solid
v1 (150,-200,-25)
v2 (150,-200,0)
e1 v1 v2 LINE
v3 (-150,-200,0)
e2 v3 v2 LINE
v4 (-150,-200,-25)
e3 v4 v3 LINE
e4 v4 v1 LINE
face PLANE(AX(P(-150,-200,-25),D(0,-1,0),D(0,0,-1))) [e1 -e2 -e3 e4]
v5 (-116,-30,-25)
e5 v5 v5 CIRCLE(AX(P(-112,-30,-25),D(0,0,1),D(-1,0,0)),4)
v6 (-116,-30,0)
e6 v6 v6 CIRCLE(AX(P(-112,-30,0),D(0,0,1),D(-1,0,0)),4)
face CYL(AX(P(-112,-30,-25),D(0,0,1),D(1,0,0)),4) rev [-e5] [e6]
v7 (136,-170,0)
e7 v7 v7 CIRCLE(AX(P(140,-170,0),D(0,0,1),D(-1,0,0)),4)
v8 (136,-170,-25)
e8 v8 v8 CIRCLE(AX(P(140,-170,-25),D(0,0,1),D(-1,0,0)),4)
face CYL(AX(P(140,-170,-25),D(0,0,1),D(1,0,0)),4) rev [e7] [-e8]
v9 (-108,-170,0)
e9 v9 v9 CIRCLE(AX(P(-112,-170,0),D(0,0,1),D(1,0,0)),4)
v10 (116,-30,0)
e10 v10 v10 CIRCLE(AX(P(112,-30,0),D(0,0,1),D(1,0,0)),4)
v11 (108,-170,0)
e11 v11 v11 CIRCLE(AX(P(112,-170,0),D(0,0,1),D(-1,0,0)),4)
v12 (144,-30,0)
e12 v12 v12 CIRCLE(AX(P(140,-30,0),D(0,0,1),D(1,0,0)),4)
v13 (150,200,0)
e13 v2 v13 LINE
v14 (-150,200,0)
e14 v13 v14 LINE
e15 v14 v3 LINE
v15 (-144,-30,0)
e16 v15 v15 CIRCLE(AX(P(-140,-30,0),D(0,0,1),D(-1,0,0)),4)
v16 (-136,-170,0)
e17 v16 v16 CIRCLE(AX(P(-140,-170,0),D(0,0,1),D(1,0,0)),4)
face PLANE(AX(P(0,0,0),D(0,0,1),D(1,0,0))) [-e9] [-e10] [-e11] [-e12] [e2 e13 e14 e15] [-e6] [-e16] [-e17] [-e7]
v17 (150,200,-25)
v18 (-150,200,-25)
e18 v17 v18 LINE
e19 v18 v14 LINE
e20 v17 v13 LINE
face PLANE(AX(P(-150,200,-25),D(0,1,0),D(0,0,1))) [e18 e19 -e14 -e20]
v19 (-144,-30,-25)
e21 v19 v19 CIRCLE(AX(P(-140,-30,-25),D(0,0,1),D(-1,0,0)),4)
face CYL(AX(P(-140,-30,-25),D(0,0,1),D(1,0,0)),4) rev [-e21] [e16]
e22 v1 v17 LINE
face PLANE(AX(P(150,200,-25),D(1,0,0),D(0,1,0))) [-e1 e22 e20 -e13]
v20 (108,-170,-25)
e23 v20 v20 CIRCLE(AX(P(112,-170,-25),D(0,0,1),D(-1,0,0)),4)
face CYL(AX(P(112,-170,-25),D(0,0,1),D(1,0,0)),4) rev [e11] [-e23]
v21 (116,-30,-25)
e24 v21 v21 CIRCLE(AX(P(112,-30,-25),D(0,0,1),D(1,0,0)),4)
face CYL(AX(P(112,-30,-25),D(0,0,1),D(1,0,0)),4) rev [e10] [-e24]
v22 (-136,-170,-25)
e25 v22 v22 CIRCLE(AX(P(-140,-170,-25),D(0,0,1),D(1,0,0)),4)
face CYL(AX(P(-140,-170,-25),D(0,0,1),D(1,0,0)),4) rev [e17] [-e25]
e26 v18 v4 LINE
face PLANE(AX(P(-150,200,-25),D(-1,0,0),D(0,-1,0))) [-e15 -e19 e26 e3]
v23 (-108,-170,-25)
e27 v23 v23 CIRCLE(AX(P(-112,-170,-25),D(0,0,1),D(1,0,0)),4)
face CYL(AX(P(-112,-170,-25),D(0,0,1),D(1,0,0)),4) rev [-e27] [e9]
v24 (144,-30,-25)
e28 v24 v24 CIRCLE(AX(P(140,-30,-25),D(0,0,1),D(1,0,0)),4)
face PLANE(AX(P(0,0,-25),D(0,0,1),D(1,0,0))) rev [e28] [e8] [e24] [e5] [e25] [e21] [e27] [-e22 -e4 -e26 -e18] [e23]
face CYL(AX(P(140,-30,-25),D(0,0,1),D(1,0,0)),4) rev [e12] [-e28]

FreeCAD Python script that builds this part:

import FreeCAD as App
import Part
import Sketcher
from FreeCAD import Vector
Q = App.Units.Quantity


def add_polygon(sketch, points):
    """Adds a closed chain of lines whose ends are joined by coincident constraints."""
    first, n = sketch.GeometryCount, len(points)
    for a, b in zip(points, points[1:] + points[:1]):
        sketch.addGeometry(Part.LineSegment(App.Vector(*a, 0), App.Vector(*b, 0)), False)
    for i in range(n):
        sketch.addConstraint(Sketcher.Constraint("Coincident", first + i, 2, first + (i + 1) % n, 1))

doc = App.newDocument("Part")
params = doc.addObject("Spreadsheet::Sheet", "Params")
for row, (alias, value) in enumerate([
    ("sketch1_diameter", "8 mm"),
    ("sketch1_width", "300 mm"),
    ("sketch1_height", "400 mm"),
    ("pad1_length", "25 mm"),
], start=1):
    params.set(f"A{row}", alias)
    params.set(f"B{row}", "=" + value)
    params.setAlias(f"B{row}", alias)

body = doc.addObject("PartDesign::Body", "Body")

# Sketch on XY plane
sketch1 = doc.addObject("Sketcher::SketchObject", "Sketch")
body.addObject(sketch1)
sketch1.AttachmentSupport = (doc.XY_Plane, [""])
sketch1.MapMode = "FlatFace"
add_polygon(sketch1, [(-150, 200), (-150, -200), (150, -200), (150, 200)])  # lines 0-3
sketch1.addGeometry(Part.Circle(Vector(-140, -170, 0), Vector(0, 0, 1), 4), False)  # 4
sketch1.addGeometry(Part.Circle(Vector(-112, -170, 0), Vector(0, 0, 1), 4), False)  # 5
sketch1.addGeometry(Part.Circle(Vector(112, -170, 0), Vector(0, 0, 1), 4), False)  # 6
sketch1.addGeometry(Part.Circle(Vector(140, -170, 0), Vector(0, 0, 1), 4), False)  # 7
sketch1.addGeometry(Part.Circle(Vector(-140, -30, 0), Vector(0, 0, 1), 4), False)  # 8
sketch1.addGeometry(Part.Circle(Vector(-112, -30, 0), Vector(0, 0, 1), 4), False)  # 9
sketch1.addGeometry(Part.Circle(Vector(112, -30, 0), Vector(0, 0, 1), 4), False)  # 10
sketch1.addGeometry(Part.Circle(Vector(140, -30, 0), Vector(0, 0, 1), 4), False)  # 11
sketch1.addConstraint(Sketcher.Constraint("Vertical", 0))
sketch1.addConstraint(Sketcher.Constraint("Horizontal", 1))
sketch1.addConstraint(Sketcher.Constraint("Vertical", 2))
sketch1.addConstraint(Sketcher.Constraint("Horizontal", 3))
sketch1.addConstraint(Sketcher.Constraint("Equal", 4, 5))
sketch1.addConstraint(Sketcher.Constraint("Equal", 5, 6))
sketch1.addConstraint(Sketcher.Constraint("Equal", 6, 7))
sketch1.addConstraint(Sketcher.Constraint("Equal", 7, 8))
sketch1.addConstraint(Sketcher.Constraint("Equal", 8, 9))
sketch1.addConstraint(Sketcher.Constraint("Equal", 9, 10))
sketch1.addConstraint(Sketcher.Constraint("Equal", 10, 11))
sketch1.addConstraint(Sketcher.Constraint("Symmetric", 0, 2, 2, 2, -1, 1))
sketch1.addConstraint(Sketcher.Constraint("Symmetric", 5, 3, 6, 3, -2))
sketch1.addConstraint(Sketcher.Constraint("Symmetric", 4, 3, 7, 3, -2))
sketch1.addConstraint(Sketcher.Constraint("Symmetric", 9, 3, 10, 3, -2))
sketch1.addConstraint(Sketcher.Constraint("Symmetric", 8, 3, 11, 3, -2))
sketch1.addConstraint(Sketcher.Constraint("Horizontal", 4, 3, 5, 3))
sketch1.addConstraint(Sketcher.Constraint("Horizontal", 8, 3, 9, 3))
sketch1.addConstraint(Sketcher.Constraint("Vertical", 4, 3, 8, 3))
sketch1.addConstraint(Sketcher.Constraint("Vertical", 5, 3, 9, 3))
sketch1.addConstraint(Sketcher.Constraint("Diameter", 4, Q("8 mm")))
sketch1.addConstraint(Sketcher.Constraint("DistanceX", 1, 1, 1, 2, Q("300 mm")))
sketch1.addConstraint(Sketcher.Constraint("DistanceY", 0, 2, 0, 1, Q("400 mm")))
sketch1.addConstraint(Sketcher.Constraint("DistanceX", 4, 3, -1, 1, Q("140 mm")))
sketch1.addConstraint(Sketcher.Constraint("DistanceY", 4, 3, -1, 1, Q("170 mm")))
sketch1.addConstraint(Sketcher.Constraint("DistanceX", 5, 3, -1, 1, Q("112 mm")))
sketch1.addConstraint(Sketcher.Constraint("DistanceY", 8, 3, -1, 1, Q("30 mm")))
sketch1.setExpression("Constraints[24]", "Params.sketch1_diameter")
sketch1.setExpression("Constraints[25]", "Params.sketch1_width")
sketch1.setExpression("Constraints[26]", "Params.sketch1_height")
pad1 = doc.addObject("PartDesign::Pad", "Pad")
body.addObject(pad1)
pad1.Profile = sketch1
pad1.setExpression("Length", "Params.pad1_length")
pad1.Reversed = True

doc.recompute()
